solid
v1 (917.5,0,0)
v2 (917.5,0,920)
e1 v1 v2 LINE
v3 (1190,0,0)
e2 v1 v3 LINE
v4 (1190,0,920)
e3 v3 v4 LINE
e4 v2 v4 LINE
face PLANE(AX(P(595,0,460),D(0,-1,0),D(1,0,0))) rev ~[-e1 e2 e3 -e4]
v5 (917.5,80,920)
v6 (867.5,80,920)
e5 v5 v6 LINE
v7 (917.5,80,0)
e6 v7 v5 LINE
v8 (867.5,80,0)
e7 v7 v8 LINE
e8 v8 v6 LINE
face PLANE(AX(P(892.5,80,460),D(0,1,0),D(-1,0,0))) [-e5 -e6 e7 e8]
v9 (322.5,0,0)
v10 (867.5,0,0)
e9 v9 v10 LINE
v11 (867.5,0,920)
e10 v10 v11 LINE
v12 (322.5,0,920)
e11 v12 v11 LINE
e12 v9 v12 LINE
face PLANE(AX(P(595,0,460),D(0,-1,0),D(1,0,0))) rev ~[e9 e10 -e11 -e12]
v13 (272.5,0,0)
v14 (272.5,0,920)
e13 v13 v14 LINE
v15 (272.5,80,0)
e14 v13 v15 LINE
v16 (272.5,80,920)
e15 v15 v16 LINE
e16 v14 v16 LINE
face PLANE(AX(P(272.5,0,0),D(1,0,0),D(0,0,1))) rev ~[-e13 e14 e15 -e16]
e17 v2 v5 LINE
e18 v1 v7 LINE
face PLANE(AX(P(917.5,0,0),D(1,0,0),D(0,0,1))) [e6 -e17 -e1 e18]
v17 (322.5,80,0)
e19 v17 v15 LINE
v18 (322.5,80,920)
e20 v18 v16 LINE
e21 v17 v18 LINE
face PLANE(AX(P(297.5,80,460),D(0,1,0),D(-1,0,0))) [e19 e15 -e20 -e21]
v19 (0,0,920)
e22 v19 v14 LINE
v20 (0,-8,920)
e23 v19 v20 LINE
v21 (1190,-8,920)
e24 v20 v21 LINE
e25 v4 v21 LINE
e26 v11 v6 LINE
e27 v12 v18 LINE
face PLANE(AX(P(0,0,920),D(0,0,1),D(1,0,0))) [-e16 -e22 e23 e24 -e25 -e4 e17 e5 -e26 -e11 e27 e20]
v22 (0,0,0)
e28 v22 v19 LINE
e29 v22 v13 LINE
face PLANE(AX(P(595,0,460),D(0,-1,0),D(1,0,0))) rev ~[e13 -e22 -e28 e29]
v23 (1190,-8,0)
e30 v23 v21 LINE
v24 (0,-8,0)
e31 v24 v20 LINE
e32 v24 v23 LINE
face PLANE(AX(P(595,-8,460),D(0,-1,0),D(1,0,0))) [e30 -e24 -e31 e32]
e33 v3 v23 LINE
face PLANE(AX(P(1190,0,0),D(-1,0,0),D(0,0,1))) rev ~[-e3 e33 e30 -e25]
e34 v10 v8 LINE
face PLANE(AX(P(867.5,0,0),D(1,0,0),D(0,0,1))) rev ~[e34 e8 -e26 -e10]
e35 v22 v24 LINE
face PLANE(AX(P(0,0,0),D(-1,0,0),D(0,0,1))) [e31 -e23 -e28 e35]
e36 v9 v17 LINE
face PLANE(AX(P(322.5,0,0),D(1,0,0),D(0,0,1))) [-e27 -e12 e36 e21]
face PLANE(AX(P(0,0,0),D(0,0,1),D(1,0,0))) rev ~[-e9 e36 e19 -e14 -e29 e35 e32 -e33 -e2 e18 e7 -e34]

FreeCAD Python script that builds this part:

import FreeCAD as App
import Part
import Sketcher
from FreeCAD import Vector
Q = App.Units.Quantity

doc = App.newDocument("Part")
body = doc.addObject("PartDesign::Body", "Body")

sketch1 = body.newObject("Sketcher::SketchObject", "Sketch")
sketch1.AttachmentSupport = (doc.getObject("XZ_Plane"), [""])
sketch1.MapMode = "FlatFace"
sketch1.addGeometry([
    Part.LineSegment(Vector(0, 920, 0), Vector(0, 0, 0)),
    Part.LineSegment(Vector(0, 0, 0), Vector(1190, 0, 0)),
    Part.LineSegment(Vector(1190, 0, 0), Vector(1190, 920, 0)),
    Part.LineSegment(Vector(1190, 920, 0), Vector(0, 920, 0)),
], False)
sketch1.addConstraint([
    Sketcher.Constraint("Coincident", 0, 2, 1, 1),
    Sketcher.Constraint("Coincident", 1, 2, 2, 1),
    Sketcher.Constraint("Coincident", 2, 2, 3, 1),
    Sketcher.Constraint("Coincident", 3, 2, 0, 1),
    Sketcher.Constraint("Vertical", 0),
    Sketcher.Constraint("Horizontal", 1),
    Sketcher.Constraint("Vertical", 2),
    Sketcher.Constraint("Horizontal", 3),
    Sketcher.Constraint("Coincident", 0, 2, -1, 1),
    Sketcher.Constraint("DistanceX", 1, 1, 1, 2, Q("1190 mm")),
    Sketcher.Constraint("DistanceY", 0, 2, 0, 1, Q("920 mm")),
])
pad1 = body.newObject("PartDesign::Pad", "Pad")
pad1.Profile = sketch1
pad1.Length = 8

sketch2 = body.newObject("Sketcher::SketchObject", "Sketch001")
sketch2.AttachmentSupport = (doc.getObject("XZ_Plane"), [""])
sketch2.MapMode = "FlatFace"
sketch2.addGeometry([
    Part.LineSegment(Vector(917.5, 920, 0), Vector(917.5, 0, 0)),
    Part.LineSegment(Vector(917.5, 0, 0), Vector(867.5, 0, 0)),
    Part.LineSegment(Vector(867.5, 0, 0), Vector(867.5, 920, 0)),
    Part.LineSegment(Vector(867.5, 920, 0), Vector(917.5, 920, 0)),
    Part.LineSegment(Vector(322.5, 920, 0), Vector(322.5, 0, 0)),
    Part.LineSegment(Vector(322.5, 0, 0), Vector(272.5, 0, 0)),
    Part.LineSegment(Vector(272.5, 0, 0), Vector(272.5, 920, 0)),
    Part.LineSegment(Vector(272.5, 920, 0), Vector(322.5, 920, 0)),
], False)
sketch2.addConstraint([
    Sketcher.Constraint("Coincident", 0, 2, 1, 1),
    Sketcher.Constraint("Coincident", 1, 2, 2, 1),
    Sketcher.Constraint("Coincident", 2, 2, 3, 1),
    Sketcher.Constraint("Coincident", 3, 2, 0, 1),
    Sketcher.Constraint("Coincident", 4, 2, 5, 1),
    Sketcher.Constraint("Coincident", 5, 2, 6, 1),
    Sketcher.Constraint("Coincident", 6, 2, 7, 1),
    Sketcher.Constraint("Coincident", 7, 2, 4, 1),
    Sketcher.Constraint("Vertical", 0),
    Sketcher.Constraint("Horizontal", 1),
    Sketcher.Constraint("Vertical", 2),
    Sketcher.Constraint("Horizontal", 3),
    Sketcher.Constraint("Vertical", 4),
    Sketcher.Constraint("Horizontal", 5),
    Sketcher.Constraint("Vertical", 6),
    Sketcher.Constraint("Horizontal", 7),
    Sketcher.Constraint("PointOnObject", 0, 2, -1),
    Sketcher.Constraint("PointOnObject", 4, 2, -1),
    Sketcher.Constraint("Horizontal", 3, 2, 6, 2),
    Sketcher.Constraint("Equal", 3, 5),
    Sketcher.Constraint("DistanceX", 1, 2, 1, 1, Q("50 mm")),
    Sketcher.Constraint("DistanceY", 0, 2, 0, 1, Q("920 mm")),
    Sketcher.Constraint("DistanceX", 4, 2, 1, 2, Q("545 mm")),
    Sketcher.Constraint("DistanceX", -1, 1, 0, 2, Q("917.5 mm")),
])
pad2 = body.newObject("PartDesign::Pad", "Pad001")
pad2.Profile = sketch2
pad2.Length = 80
pad2.Reversed = True

doc.recompute()
